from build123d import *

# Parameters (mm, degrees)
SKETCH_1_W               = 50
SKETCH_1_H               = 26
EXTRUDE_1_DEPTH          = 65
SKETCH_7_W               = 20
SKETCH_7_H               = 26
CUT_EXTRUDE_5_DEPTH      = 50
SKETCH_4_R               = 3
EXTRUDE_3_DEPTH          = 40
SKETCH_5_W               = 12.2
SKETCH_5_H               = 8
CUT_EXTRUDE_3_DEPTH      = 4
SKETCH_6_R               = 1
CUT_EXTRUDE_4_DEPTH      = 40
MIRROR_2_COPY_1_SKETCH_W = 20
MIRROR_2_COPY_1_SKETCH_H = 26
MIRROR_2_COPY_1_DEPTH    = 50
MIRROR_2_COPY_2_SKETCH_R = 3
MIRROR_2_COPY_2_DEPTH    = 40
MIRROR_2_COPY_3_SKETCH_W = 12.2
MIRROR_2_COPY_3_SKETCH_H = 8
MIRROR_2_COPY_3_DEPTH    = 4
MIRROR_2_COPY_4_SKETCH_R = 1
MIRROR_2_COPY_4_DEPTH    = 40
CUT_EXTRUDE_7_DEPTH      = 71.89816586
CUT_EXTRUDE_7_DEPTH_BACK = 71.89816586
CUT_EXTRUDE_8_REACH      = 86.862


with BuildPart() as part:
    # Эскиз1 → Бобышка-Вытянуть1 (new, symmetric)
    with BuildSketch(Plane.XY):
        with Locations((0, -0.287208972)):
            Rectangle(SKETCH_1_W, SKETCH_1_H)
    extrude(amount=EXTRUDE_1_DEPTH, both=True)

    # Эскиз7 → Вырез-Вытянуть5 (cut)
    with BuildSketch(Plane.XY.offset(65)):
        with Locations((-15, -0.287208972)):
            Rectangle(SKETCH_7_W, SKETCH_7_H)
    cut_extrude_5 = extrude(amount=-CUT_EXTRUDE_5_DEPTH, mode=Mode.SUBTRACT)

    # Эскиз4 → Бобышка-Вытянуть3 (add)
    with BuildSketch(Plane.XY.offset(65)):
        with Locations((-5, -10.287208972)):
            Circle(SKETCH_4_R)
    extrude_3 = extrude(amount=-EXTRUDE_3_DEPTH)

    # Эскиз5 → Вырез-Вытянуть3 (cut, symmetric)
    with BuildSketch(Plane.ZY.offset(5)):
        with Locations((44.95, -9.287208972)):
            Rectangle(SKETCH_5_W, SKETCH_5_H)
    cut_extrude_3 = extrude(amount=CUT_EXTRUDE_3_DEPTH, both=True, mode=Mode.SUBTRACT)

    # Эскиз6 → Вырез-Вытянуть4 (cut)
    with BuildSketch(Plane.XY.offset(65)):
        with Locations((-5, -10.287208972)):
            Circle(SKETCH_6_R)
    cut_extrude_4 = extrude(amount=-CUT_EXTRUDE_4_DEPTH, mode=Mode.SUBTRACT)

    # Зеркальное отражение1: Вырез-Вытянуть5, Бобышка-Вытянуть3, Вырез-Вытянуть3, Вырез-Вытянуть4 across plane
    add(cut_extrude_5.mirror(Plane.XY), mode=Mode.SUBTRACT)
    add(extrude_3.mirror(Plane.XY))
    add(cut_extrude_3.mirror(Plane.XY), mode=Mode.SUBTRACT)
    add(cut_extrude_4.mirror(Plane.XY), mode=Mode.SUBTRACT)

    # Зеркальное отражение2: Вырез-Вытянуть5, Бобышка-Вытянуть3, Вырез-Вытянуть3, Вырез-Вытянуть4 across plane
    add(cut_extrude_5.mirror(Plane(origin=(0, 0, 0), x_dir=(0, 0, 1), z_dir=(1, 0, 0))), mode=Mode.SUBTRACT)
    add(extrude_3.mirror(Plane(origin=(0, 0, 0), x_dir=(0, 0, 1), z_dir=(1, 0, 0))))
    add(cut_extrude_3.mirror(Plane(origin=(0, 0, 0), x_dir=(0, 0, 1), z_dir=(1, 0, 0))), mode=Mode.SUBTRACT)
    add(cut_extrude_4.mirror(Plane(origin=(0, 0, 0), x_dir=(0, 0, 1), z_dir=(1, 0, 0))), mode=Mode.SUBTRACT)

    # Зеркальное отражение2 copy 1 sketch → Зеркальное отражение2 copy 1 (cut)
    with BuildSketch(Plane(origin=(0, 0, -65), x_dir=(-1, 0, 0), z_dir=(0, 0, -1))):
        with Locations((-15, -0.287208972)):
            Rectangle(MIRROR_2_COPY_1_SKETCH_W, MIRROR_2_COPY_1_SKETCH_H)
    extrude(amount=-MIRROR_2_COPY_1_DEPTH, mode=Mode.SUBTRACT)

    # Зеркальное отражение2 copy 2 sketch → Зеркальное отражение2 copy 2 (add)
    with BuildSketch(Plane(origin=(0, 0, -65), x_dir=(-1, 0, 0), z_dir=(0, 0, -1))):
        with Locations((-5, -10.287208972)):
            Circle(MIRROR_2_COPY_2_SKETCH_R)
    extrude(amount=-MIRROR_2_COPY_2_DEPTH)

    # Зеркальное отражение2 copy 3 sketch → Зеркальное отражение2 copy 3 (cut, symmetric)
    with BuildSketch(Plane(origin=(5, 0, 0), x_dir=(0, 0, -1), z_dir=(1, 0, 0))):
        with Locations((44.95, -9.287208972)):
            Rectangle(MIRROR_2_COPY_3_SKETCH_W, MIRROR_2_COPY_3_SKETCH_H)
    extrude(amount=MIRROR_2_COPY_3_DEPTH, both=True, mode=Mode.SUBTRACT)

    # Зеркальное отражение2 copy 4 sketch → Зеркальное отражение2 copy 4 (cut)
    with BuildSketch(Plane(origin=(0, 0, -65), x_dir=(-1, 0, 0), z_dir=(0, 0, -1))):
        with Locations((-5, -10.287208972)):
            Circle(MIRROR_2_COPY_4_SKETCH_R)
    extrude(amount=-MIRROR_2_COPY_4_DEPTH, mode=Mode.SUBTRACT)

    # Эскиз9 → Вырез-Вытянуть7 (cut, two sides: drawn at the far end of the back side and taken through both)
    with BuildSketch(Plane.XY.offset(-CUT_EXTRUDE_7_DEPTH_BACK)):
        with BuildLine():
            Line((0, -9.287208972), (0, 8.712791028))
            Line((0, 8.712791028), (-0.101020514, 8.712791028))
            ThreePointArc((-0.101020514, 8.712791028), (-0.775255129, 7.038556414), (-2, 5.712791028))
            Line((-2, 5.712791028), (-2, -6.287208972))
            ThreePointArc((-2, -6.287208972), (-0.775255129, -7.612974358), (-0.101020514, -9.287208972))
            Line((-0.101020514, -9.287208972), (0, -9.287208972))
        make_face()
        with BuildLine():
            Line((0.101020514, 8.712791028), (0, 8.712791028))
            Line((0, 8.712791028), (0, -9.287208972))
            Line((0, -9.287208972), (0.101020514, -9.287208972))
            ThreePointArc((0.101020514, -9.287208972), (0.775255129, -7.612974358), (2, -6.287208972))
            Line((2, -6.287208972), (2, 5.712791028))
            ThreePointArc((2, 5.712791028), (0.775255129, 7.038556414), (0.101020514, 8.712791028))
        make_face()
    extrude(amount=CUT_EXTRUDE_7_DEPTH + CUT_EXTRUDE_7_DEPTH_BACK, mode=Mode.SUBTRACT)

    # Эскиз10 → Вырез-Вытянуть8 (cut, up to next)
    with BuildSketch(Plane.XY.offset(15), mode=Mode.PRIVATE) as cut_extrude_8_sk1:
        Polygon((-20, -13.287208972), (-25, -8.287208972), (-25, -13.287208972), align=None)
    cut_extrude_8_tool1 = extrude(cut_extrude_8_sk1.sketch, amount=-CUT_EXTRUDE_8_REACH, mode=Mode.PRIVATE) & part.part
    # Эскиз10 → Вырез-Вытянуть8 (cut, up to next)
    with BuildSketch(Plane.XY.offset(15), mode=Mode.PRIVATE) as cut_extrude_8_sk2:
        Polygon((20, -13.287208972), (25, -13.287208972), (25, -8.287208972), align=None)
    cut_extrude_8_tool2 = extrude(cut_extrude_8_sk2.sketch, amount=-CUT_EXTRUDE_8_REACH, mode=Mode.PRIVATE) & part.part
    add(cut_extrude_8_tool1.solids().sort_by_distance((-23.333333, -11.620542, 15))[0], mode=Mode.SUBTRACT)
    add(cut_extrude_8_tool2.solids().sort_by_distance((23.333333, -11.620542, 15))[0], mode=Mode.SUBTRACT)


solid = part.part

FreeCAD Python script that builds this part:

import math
import FreeCAD as App
import Part
import Sketcher
from FreeCAD import Vector
Q = App.Units.Quantity

doc = App.newDocument("Part")
params = doc.addObject("Spreadsheet::Sheet", "Params")
for row, (alias, value) in enumerate([
    ("sketch1_width", "50 mm"),
    ("sketch1_height", "26 mm"),
    ("pad1_length", "130 mm"),
    ("sketch2_width", "20 mm"),
    ("sketch2_height", "26 mm"),
    ("pocket1_length", "50 mm"),
    ("sketch3_diameter", "6 mm"),
    ("pad2_length", "40 mm"),
    ("sketch4_width", "8 mm"),
    ("sketch4_height", "12.2 mm"),
    ("pocket2_length", "8 mm"),
    ("sketch5_diameter", "2 mm"),
    ("pocket3_length", "40 mm"),
    ("sketch6_width", "20 mm"),
    ("sketch6_height", "26 mm"),
    ("pocket4_length", "50 mm"),
    ("sketch7_diameter", "6 mm"),
    ("pad3_length", "40 mm"),
    ("sketch8_width", "8 mm"),
    ("sketch8_height", "12.2 mm"),
    ("pocket5_length", "8 mm"),
    ("sketch9_diameter", "2 mm"),
    ("pocket6_length", "40 mm"),
    ("sketch10_radius", "5 mm"),
    ("sketch10_height", "12 mm"),
    ("sketch11_width", "5 mm"),
    ("sketch12_width", "5 mm"),
], start=1):
    params.set(f"A{row}", alias)
    params.set(f"B{row}", "=" + value)
    params.setAlias(f"B{row}", alias)

body = doc.addObject("PartDesign::Body", "Body")

sketch1 = doc.addObject("Sketcher::SketchObject", "Sketch")
body.addObject(sketch1)
sketch1.AttachmentSupport = (doc.XY_Plane, [""])
sketch1.MapMode = "FlatFace"
sketch1.addGeometry([
    Part.LineSegment(Vector(-25, 13, 0), Vector(-25, -13, 0)),
    Part.LineSegment(Vector(-25, -13, 0), Vector(25, -13, 0)),
    Part.LineSegment(Vector(25, -13, 0), Vector(25, 13, 0)),
    Part.LineSegment(Vector(25, 13, 0), Vector(-25, 13, 0)),
], False)
sketch1.addConstraint([
    Sketcher.Constraint("Coincident", 0, 2, 1, 1),
    Sketcher.Constraint("Coincident", 1, 2, 2, 1),
    Sketcher.Constraint("Coincident", 2, 2, 3, 1),
    Sketcher.Constraint("Coincident", 3, 2, 0, 1),
    Sketcher.Constraint("Vertical", 0),
    Sketcher.Constraint("Horizontal", 1),
    Sketcher.Constraint("Vertical", 2),
    Sketcher.Constraint("Horizontal", 3),
    Sketcher.Constraint("DistanceX", 1, 1, 1, 2, Q("50 mm")),
    Sketcher.Constraint("DistanceY", 0, 2, 0, 1, Q("26 mm")),
    Sketcher.Constraint("DistanceX", 0, 2, -1, 1, Q("25 mm")),
    Sketcher.Constraint("DistanceY", 0, 2, -1, 1, Q("13.287209 mm")),
])
sketch1.setExpression("Constraints[8]", "Params.sketch1_width")
sketch1.setExpression("Constraints[9]", "Params.sketch1_height")
pad1 = doc.addObject("PartDesign::Pad", "Pad")
body.addObject(pad1)
pad1.Profile = sketch1
pad1.setExpression("Length", "Params.pad1_length")
pad1.Midplane = True

sketch2 = doc.addObject("Sketcher::SketchObject", "Sketch001")
body.addObject(sketch2)
sketch2.AttachmentSupport = (doc.XY_Plane, [""])
sketch2.MapMode = "FlatFace"
sketch2.AttachmentOffset = App.Placement(Vector(0, 0, 65), App.Rotation())
sketch2.addGeometry([
    Part.LineSegment(Vector(-25, 13, 0), Vector(-25, -13, 0)),
    Part.LineSegment(Vector(-25, -13, 0), Vector(-5, -13, 0)),
    Part.LineSegment(Vector(-5, -13, 0), Vector(-5, 13, 0)),
    Part.LineSegment(Vector(-5, 13, 0), Vector(-25, 13, 0)),
], False)
sketch2.addConstraint([
    Sketcher.Constraint("Coincident", 0, 2, 1, 1),
    Sketcher.Constraint("Coincident", 1, 2, 2, 1),
    Sketcher.Constraint("Coincident", 2, 2, 3, 1),
    Sketcher.Constraint("Coincident", 3, 2, 0, 1),
    Sketcher.Constraint("Vertical", 0),
    Sketcher.Constraint("Horizontal", 1),
    Sketcher.Constraint("Vertical", 2),
    Sketcher.Constraint("Horizontal", 3),
    Sketcher.Constraint("DistanceX", 1, 1, 1, 2, Q("20 mm")),
    Sketcher.Constraint("DistanceY", 0, 2, 0, 1, Q("26 mm")),
    Sketcher.Constraint("DistanceX", 0, 2, -1, 1, Q("25 mm")),
    Sketcher.Constraint("DistanceY", 0, 2, -1, 1, Q("13.287209 mm")),
])
sketch2.setExpression("Constraints[8]", "Params.sketch2_width")
sketch2.setExpression("Constraints[9]", "Params.sketch2_height")
pocket1 = doc.addObject("PartDesign::Pocket", "Pocket")
body.addObject(pocket1)
pocket1.Profile = sketch2
pocket1.setExpression("Length", "Params.pocket1_length")

sketch3 = doc.addObject("Sketcher::SketchObject", "Sketch002")
body.addObject(sketch3)
sketch3.AttachmentSupport = (doc.XY_Plane, [""])
sketch3.MapMode = "FlatFace"
sketch3.AttachmentOffset = App.Placement(Vector(0, 0, 65), App.Rotation())
sketch3.addGeometry(Part.Circle(Vector(-5, -10.3, 0), Vector(0, 0, 1), 3), False)
sketch3.addConstraint([
    Sketcher.Constraint("Diameter", 0, Q("6 mm")),
    Sketcher.Constraint("DistanceX", 0, 3, -1, 1, Q("5 mm")),
    Sketcher.Constraint("DistanceY", 0, 3, -1, 1, Q("10.287209 mm")),
])
sketch3.setExpression("Constraints[0]", "Params.sketch3_diameter")
pad2 = doc.addObject("PartDesign::Pad", "Pad001")
body.addObject(pad2)
pad2.Profile = sketch3
pad2.setExpression("Length", "Params.pad2_length")
pad2.Reversed = True

sketch4 = doc.addObject("Sketcher::SketchObject", "Sketch003")
body.addObject(sketch4)
sketch4.AttachmentSupport = (doc.YZ_Plane, [""])
sketch4.MapMode = "FlatFace"
sketch4.AttachmentOffset = App.Placement(Vector(0, 0, -5), App.Rotation())
sketch4.addGeometry([
    Part.LineSegment(Vector(-5, 39, 0), Vector(-13, 39, 0)),
    Part.LineSegment(Vector(-13, 39, 0), Vector(-13, 51, 0)),
    Part.LineSegment(Vector(-13, 51, 0), Vector(-5, 51, 0)),
    Part.LineSegment(Vector(-5, 51, 0), Vector(-5, 39, 0)),
], False)
sketch4.addConstraint([
    Sketcher.Constraint("Coincident", 0, 2, 1, 1),
    Sketcher.Constraint("Coincident", 1, 2, 2, 1),
    Sketcher.Constraint("Coincident", 2, 2, 3, 1),
    Sketcher.Constraint("Coincident", 3, 2, 0, 1),
    Sketcher.Constraint("Horizontal", 0),
    Sketcher.Constraint("Vertical", 1),
    Sketcher.Constraint("Horizontal", 2),
    Sketcher.Constraint("Vertical", 3),
    Sketcher.Constraint("DistanceX", 0, 2, 0, 1, Q("8 mm")),
    Sketcher.Constraint("DistanceY", 1, 1, 1, 2, Q("12.2 mm")),
    Sketcher.Constraint("DistanceY", -1, 1, 0, 2, Q("38.85 mm")),
    Sketcher.Constraint("DistanceX", 0, 2, -1, 1, Q("13.287209 mm")),
])
sketch4.setExpression("Constraints[8]", "Params.sketch4_width")
sketch4.setExpression("Constraints[9]", "Params.sketch4_height")
pocket2 = doc.addObject("PartDesign::Pocket", "Pocket001")
body.addObject(pocket2)
pocket2.Profile = sketch4
pocket2.setExpression("Length", "Params.pocket2_length")
pocket2.Midplane = True

sketch5 = doc.addObject("Sketcher::SketchObject", "Sketch004")
body.addObject(sketch5)
sketch5.AttachmentSupport = (doc.XY_Plane, [""])
sketch5.MapMode = "FlatFace"
sketch5.AttachmentOffset = App.Placement(Vector(0, 0, 65), App.Rotation())
sketch5.addGeometry(Part.Circle(Vector(-5, -10.3, 0), Vector(0, 0, 1), 1), False)
sketch5.addConstraint([
    Sketcher.Constraint("Diameter", 0, Q("2 mm")),
    Sketcher.Constraint("DistanceX", 0, 3, -1, 1, Q("5 mm")),
    Sketcher.Constraint("DistanceY", 0, 3, -1, 1, Q("10.287209 mm")),
])
sketch5.setExpression("Constraints[0]", "Params.sketch5_diameter")
pocket3 = doc.addObject("PartDesign::Pocket", "Pocket002")
body.addObject(pocket3)
pocket3.Profile = sketch5
pocket3.setExpression("Length", "Params.pocket3_length")
doc.recompute()

mirrored = doc.addObject("PartDesign::Mirrored", "Mirrored")
body.addObject(mirrored)
mirrored.Originals = [pocket1, pad2, pocket2, pocket3]
mirrored.MirrorPlane = (doc.XY_Plane, [""])
body.Tip = mirrored
doc.recompute()

mirrored2 = doc.addObject("PartDesign::Mirrored", "Mirrored001")
body.addObject(mirrored2)
mirrored2.Originals = [pocket1, pad2, pocket2, pocket3]
mirrored2.MirrorPlane = (doc.YZ_Plane, [""])
body.Tip = mirrored2

sketch6 = doc.addObject("Sketcher::SketchObject", "Sketch005")
body.addObject(sketch6)
sketch6.AttachmentSupport = (doc.XY_Plane, [""])
sketch6.MapMode = "FlatFace"
sketch6.AttachmentOffset = App.Placement(Vector(0, 0, -65), App.Rotation())
sketch6.addGeometry([
    Part.LineSegment(Vector(25, 13, 0), Vector(25, -13, 0)),
    Part.LineSegment(Vector(25, -13, 0), Vector(5, -13, 0)),
    Part.LineSegment(Vector(5, -13, 0), Vector(5, 13, 0)),
    Part.LineSegment(Vector(5, 13, 0), Vector(25, 13, 0)),
], False)
sketch6.addConstraint([
    Sketcher.Constraint("Coincident", 0, 2, 1, 1),
    Sketcher.Constraint("Coincident", 1, 2, 2, 1),
    Sketcher.Constraint("Coincident", 2, 2, 3, 1),
    Sketcher.Constraint("Coincident", 3, 2, 0, 1),
    Sketcher.Constraint("Vertical", 0),
    Sketcher.Constraint("Horizontal", 1),
    Sketcher.Constraint("Vertical", 2),
    Sketcher.Constraint("Horizontal", 3),
    Sketcher.Constraint("DistanceX", 1, 2, 1, 1, Q("20 mm")),
    Sketcher.Constraint("DistanceY", 0, 2, 0, 1, Q("26 mm")),
    Sketcher.Constraint("DistanceX", -1, 1, 0, 2, Q("25 mm")),
    Sketcher.Constraint("DistanceY", 0, 2, -1, 1, Q("13.287209 mm")),
])
sketch6.setExpression("Constraints[8]", "Params.sketch6_width")
sketch6.setExpression("Constraints[9]", "Params.sketch6_height")
pocket4 = doc.addObject("PartDesign::Pocket", "Pocket003")
body.addObject(pocket4)
pocket4.Profile = sketch6
pocket4.setExpression("Length", "Params.pocket4_length")
pocket4.Reversed = True

sketch7 = doc.addObject("Sketcher::SketchObject", "Sketch006")
body.addObject(sketch7)
sketch7.AttachmentSupport = (doc.XY_Plane, [""])
sketch7.MapMode = "FlatFace"
sketch7.AttachmentOffset = App.Placement(Vector(0, 0, -65), App.Rotation())
sketch7.addGeometry(Part.Circle(Vector(5, -10.3, 0), Vector(0, 0, 1), 3), False)
sketch7.addConstraint([
    Sketcher.Constraint("Diameter", 0, Q("6 mm")),
    Sketcher.Constraint("DistanceX", -1, 1, 0, 3, Q("5 mm")),
    Sketcher.Constraint("DistanceY", 0, 3, -1, 1, Q("10.287209 mm")),
])
sketch7.setExpression("Constraints[0]", "Params.sketch7_diameter")
pad3 = doc.addObject("PartDesign::Pad", "Pad002")
body.addObject(pad3)
pad3.Profile = sketch7
pad3.setExpression("Length", "Params.pad3_length")

sketch8 = doc.addObject("Sketcher::SketchObject", "Sketch007")
body.addObject(sketch8)
sketch8.AttachmentSupport = (doc.YZ_Plane, [""])
sketch8.MapMode = "FlatFace"
sketch8.AttachmentOffset = App.Placement(Vector(0, 0, 5), App.Rotation())
sketch8.addGeometry([
    Part.LineSegment(Vector(-5, -39, 0), Vector(-13, -39, 0)),
    Part.LineSegment(Vector(-13, -39, 0), Vector(-13, -51, 0)),
    Part.LineSegment(Vector(-13, -51, 0), Vector(-5, -51, 0)),
    Part.LineSegment(Vector(-5, -51, 0), Vector(-5, -39, 0)),
], False)
sketch8.addConstraint([
    Sketcher.Constraint("Coincident", 0, 2, 1, 1),
    Sketcher.Constraint("Coincident", 1, 2, 2, 1),
    Sketcher.Constraint("Coincident", 2, 2, 3, 1),
    Sketcher.Constraint("Coincident", 3, 2, 0, 1),
    Sketcher.Constraint("Horizontal", 0),
    Sketcher.Constraint("Vertical", 1),
    Sketcher.Constraint("Horizontal", 2),
    Sketcher.Constraint("Vertical", 3),
    Sketcher.Constraint("DistanceX", 0, 2, 0, 1, Q("8 mm")),
    Sketcher.Constraint("DistanceY", 1, 2, 1, 1, Q("12.2 mm")),
    Sketcher.Constraint("DistanceY", 0, 2, -1, 1, Q("38.85 mm")),
    Sketcher.Constraint("DistanceX", 0, 2, -1, 1, Q("13.287209 mm")),
])
sketch8.setExpression("Constraints[8]", "Params.sketch8_width")
sketch8.setExpression("Constraints[9]", "Params.sketch8_height")
pocket5 = doc.addObject("PartDesign::Pocket", "Pocket004")
body.addObject(pocket5)
pocket5.Profile = sketch8
pocket5.setExpression("Length", "Params.pocket5_length")
pocket5.Midplane = True

sketch9 = doc.addObject("Sketcher::SketchObject", "Sketch008")
body.addObject(sketch9)
sketch9.AttachmentSupport = (doc.XY_Plane, [""])
sketch9.MapMode = "FlatFace"
sketch9.AttachmentOffset = App.Placement(Vector(0, 0, -65), App.Rotation())
sketch9.addGeometry(Part.Circle(Vector(5, -10.3, 0), Vector(0, 0, 1), 1), False)
sketch9.addConstraint([
    Sketcher.Constraint("Diameter", 0, Q("2 mm")),
    Sketcher.Constraint("DistanceX", -1, 1, 0, 3, Q("5 mm")),
    Sketcher.Constraint("DistanceY", 0, 3, -1, 1, Q("10.287209 mm")),
])
sketch9.setExpression("Constraints[0]", "Params.sketch9_diameter")
pocket6 = doc.addObject("PartDesign::Pocket", "Pocket005")
body.addObject(pocket6)
pocket6.Profile = sketch9
pocket6.setExpression("Length", "Params.pocket6_length")
pocket6.Reversed = True

sketch10 = doc.addObject("Sketcher::SketchObject", "Sketch009")
body.addObject(sketch10)
sketch10.AttachmentSupport = (doc.XY_Plane, [""])
sketch10.MapMode = "FlatFace"
sketch10.addGeometry([
    Part.ArcOfCircle(Part.Circle(Vector(-5, 9.71, 0), Vector(0, 0, 1), 5), math.radians(-53), math.radians(-12)),
    Part.LineSegment(Vector(-2, 5.71, 0), Vector(-2, -6.29, 0)),
    Part.ArcOfCircle(Part.Circle(Vector(-5, -10.29, 0), Vector(0, 0, 1), 5), math.radians(12), math.radians(53)),
    Part.LineSegment(Vector(-0.1, -9.29, 0), Vector(0.1, -9.29, 0)),
    Part.ArcOfCircle(Part.Circle(Vector(5, -10.29, 0), Vector(0, 0, 1), 5), math.radians(127), math.radians(168)),
    Part.LineSegment(Vector(2, -6.29, 0), Vector(2, 5.71, 0)),
    Part.ArcOfCircle(Part.Circle(Vector(5, 9.71, 0), Vector(0, 0, 1), 5), math.radians(-168), math.radians(-127)),
    Part.LineSegment(Vector(0.1, 8.71, 0), Vector(-0.1, 8.71, 0)),
], False)
sketch10.addConstraint([
    Sketcher.Constraint("Coincident", 0, 1, 1, 1),
    Sketcher.Constraint("Coincident", 1, 2, 2, 2),
    Sketcher.Constraint("Coincident", 2, 1, 3, 1),
    Sketcher.Constraint("Coincident", 3, 2, 4, 2),
    Sketcher.Constraint("Coincident", 4, 1, 5, 1),
    Sketcher.Constraint("Coincident", 5, 2, 6, 2),
    Sketcher.Constraint("Coincident", 6, 1, 7, 1),
    Sketcher.Constraint("Coincident", 7, 2, 0, 2),
    Sketcher.Constraint("Vertical", 1),
    Sketcher.Constraint("Horizontal", 3),
    Sketcher.Constraint("Vertical", 5),
    Sketcher.Constraint("Horizontal", 7),
    Sketcher.Constraint("Equal", 0, 2),
    Sketcher.Constraint("Equal", 2, 4),
    Sketcher.Constraint("Equal", 4, 6),
    Sketcher.Constraint("Symmetric", 2, 3, 4, 3, -2),
    Sketcher.Constraint("Symmetric", 0, 3, 6, 3, -2),
    Sketcher.Constraint("Horizontal", 1, 2, 4, 1),
    Sketcher.Constraint("Vertical", 0, 3, 2, 3),
    Sketcher.Constraint("Vertical", 3, 2, 6, 1),
    Sketcher.Constraint("Radius", 0, Q("5 mm")),
    Sketcher.Constraint("DistanceY", 1, 2, 1, 1, Q("12 mm")),
    Sketcher.Constraint("DistanceX", 0, 3, -1, 1, Q("5 mm")),
    Sketcher.Constraint("DistanceX", 0, 1, -1, 1, Q("2 mm")),
    Sketcher.Constraint("DistanceY", 2, 1, 1, 2, Q("3 mm")),
    Sketcher.Constraint("DistanceY", -1, 1, 0, 3, Q("9.712791 mm")),
])
sketch10.setExpression("Constraints[20]", "Params.sketch10_radius")
sketch10.setExpression("Constraints[21]", "Params.sketch10_height")
pocket7 = doc.addObject("PartDesign::Pocket", "Pocket006")
body.addObject(pocket7)
pocket7.Profile = sketch10
pocket7.Type = "ThroughAll"
pocket7.Midplane = True

sketch11 = doc.addObject("Sketcher::SketchObject", "Sketch010")
body.addObject(sketch11)
sketch11.AttachmentSupport = (doc.XY_Plane, [""])
sketch11.MapMode = "FlatFace"
sketch11.AttachmentOffset = App.Placement(Vector(0, 0, 15), App.Rotation())
sketch11.addGeometry([
    Part.LineSegment(Vector(-20, -13, 0), Vector(-25, -8, 0)),
    Part.LineSegment(Vector(-25, -8, 0), Vector(-25, -13, 0)),
    Part.LineSegment(Vector(-25, -13, 0), Vector(-20, -13, 0)),
], False)
sketch11.addConstraint([
    Sketcher.Constraint("Coincident", 0, 2, 1, 1),
    Sketcher.Constraint("Coincident", 1, 2, 2, 1),
    Sketcher.Constraint("Coincident", 2, 2, 0, 1),
    Sketcher.Constraint("Vertical", 1),
    Sketcher.Constraint("Horizontal", 2),
    Sketcher.Constraint("Equal", 2, 1),
    Sketcher.Constraint("DistanceX", 2, 1, 2, 2, Q("5 mm")),
    Sketcher.Constraint("DistanceX", 0, 2, -1, 1, Q("25 mm")),
    Sketcher.Constraint("DistanceY", 0, 2, -1, 1, Q("8.287209 mm")),
])
sketch11.setExpression("Constraints[6]", "Params.sketch11_width")
pocket8 = doc.addObject("PartDesign::Pocket", "Pocket007")
body.addObject(pocket8)
pocket8.Profile = sketch11
pocket8.Type = "UpToFirst"

sketch12 = doc.addObject("Sketcher::SketchObject", "Sketch011")
body.addObject(sketch12)
sketch12.AttachmentSupport = (doc.XY_Plane, [""])
sketch12.MapMode = "FlatFace"
sketch12.AttachmentOffset = App.Placement(Vector(0, 0, 15), App.Rotation())
sketch12.addGeometry([
    Part.LineSegment(Vector(20, -13, 0), Vector(25, -13, 0)),
    Part.LineSegment(Vector(25, -13, 0), Vector(25, -8, 0)),
    Part.LineSegment(Vector(25, -8, 0), Vector(20, -13, 0)),
], False)
sketch12.addConstraint([
    Sketcher.Constraint("Coincident", 0, 2, 1, 1),
    Sketcher.Constraint("Coincident", 1, 2, 2, 1),
    Sketcher.Constraint("Coincident", 2, 2, 0, 1),
    Sketcher.Constraint("Horizontal", 0),
    Sketcher.Constraint("Vertical", 1),
    Sketcher.Constraint("Equal", 0, 1),
    Sketcher.Constraint("DistanceX", 0, 1, 0, 2, Q("5 mm")),
    Sketcher.Constraint("DistanceX", -1, 1, 0, 2, Q("25 mm")),
    Sketcher.Constraint("DistanceY", 0, 2, -1, 1, Q("13.287209 mm")),
])
sketch12.setExpression("Constraints[6]", "Params.sketch12_width")
pocket9 = doc.addObject("PartDesign::Pocket", "Pocket008")
body.addObject(pocket9)
pocket9.Profile = sketch12
pocket9.Type = "UpToFirst"

doc.recompute()
